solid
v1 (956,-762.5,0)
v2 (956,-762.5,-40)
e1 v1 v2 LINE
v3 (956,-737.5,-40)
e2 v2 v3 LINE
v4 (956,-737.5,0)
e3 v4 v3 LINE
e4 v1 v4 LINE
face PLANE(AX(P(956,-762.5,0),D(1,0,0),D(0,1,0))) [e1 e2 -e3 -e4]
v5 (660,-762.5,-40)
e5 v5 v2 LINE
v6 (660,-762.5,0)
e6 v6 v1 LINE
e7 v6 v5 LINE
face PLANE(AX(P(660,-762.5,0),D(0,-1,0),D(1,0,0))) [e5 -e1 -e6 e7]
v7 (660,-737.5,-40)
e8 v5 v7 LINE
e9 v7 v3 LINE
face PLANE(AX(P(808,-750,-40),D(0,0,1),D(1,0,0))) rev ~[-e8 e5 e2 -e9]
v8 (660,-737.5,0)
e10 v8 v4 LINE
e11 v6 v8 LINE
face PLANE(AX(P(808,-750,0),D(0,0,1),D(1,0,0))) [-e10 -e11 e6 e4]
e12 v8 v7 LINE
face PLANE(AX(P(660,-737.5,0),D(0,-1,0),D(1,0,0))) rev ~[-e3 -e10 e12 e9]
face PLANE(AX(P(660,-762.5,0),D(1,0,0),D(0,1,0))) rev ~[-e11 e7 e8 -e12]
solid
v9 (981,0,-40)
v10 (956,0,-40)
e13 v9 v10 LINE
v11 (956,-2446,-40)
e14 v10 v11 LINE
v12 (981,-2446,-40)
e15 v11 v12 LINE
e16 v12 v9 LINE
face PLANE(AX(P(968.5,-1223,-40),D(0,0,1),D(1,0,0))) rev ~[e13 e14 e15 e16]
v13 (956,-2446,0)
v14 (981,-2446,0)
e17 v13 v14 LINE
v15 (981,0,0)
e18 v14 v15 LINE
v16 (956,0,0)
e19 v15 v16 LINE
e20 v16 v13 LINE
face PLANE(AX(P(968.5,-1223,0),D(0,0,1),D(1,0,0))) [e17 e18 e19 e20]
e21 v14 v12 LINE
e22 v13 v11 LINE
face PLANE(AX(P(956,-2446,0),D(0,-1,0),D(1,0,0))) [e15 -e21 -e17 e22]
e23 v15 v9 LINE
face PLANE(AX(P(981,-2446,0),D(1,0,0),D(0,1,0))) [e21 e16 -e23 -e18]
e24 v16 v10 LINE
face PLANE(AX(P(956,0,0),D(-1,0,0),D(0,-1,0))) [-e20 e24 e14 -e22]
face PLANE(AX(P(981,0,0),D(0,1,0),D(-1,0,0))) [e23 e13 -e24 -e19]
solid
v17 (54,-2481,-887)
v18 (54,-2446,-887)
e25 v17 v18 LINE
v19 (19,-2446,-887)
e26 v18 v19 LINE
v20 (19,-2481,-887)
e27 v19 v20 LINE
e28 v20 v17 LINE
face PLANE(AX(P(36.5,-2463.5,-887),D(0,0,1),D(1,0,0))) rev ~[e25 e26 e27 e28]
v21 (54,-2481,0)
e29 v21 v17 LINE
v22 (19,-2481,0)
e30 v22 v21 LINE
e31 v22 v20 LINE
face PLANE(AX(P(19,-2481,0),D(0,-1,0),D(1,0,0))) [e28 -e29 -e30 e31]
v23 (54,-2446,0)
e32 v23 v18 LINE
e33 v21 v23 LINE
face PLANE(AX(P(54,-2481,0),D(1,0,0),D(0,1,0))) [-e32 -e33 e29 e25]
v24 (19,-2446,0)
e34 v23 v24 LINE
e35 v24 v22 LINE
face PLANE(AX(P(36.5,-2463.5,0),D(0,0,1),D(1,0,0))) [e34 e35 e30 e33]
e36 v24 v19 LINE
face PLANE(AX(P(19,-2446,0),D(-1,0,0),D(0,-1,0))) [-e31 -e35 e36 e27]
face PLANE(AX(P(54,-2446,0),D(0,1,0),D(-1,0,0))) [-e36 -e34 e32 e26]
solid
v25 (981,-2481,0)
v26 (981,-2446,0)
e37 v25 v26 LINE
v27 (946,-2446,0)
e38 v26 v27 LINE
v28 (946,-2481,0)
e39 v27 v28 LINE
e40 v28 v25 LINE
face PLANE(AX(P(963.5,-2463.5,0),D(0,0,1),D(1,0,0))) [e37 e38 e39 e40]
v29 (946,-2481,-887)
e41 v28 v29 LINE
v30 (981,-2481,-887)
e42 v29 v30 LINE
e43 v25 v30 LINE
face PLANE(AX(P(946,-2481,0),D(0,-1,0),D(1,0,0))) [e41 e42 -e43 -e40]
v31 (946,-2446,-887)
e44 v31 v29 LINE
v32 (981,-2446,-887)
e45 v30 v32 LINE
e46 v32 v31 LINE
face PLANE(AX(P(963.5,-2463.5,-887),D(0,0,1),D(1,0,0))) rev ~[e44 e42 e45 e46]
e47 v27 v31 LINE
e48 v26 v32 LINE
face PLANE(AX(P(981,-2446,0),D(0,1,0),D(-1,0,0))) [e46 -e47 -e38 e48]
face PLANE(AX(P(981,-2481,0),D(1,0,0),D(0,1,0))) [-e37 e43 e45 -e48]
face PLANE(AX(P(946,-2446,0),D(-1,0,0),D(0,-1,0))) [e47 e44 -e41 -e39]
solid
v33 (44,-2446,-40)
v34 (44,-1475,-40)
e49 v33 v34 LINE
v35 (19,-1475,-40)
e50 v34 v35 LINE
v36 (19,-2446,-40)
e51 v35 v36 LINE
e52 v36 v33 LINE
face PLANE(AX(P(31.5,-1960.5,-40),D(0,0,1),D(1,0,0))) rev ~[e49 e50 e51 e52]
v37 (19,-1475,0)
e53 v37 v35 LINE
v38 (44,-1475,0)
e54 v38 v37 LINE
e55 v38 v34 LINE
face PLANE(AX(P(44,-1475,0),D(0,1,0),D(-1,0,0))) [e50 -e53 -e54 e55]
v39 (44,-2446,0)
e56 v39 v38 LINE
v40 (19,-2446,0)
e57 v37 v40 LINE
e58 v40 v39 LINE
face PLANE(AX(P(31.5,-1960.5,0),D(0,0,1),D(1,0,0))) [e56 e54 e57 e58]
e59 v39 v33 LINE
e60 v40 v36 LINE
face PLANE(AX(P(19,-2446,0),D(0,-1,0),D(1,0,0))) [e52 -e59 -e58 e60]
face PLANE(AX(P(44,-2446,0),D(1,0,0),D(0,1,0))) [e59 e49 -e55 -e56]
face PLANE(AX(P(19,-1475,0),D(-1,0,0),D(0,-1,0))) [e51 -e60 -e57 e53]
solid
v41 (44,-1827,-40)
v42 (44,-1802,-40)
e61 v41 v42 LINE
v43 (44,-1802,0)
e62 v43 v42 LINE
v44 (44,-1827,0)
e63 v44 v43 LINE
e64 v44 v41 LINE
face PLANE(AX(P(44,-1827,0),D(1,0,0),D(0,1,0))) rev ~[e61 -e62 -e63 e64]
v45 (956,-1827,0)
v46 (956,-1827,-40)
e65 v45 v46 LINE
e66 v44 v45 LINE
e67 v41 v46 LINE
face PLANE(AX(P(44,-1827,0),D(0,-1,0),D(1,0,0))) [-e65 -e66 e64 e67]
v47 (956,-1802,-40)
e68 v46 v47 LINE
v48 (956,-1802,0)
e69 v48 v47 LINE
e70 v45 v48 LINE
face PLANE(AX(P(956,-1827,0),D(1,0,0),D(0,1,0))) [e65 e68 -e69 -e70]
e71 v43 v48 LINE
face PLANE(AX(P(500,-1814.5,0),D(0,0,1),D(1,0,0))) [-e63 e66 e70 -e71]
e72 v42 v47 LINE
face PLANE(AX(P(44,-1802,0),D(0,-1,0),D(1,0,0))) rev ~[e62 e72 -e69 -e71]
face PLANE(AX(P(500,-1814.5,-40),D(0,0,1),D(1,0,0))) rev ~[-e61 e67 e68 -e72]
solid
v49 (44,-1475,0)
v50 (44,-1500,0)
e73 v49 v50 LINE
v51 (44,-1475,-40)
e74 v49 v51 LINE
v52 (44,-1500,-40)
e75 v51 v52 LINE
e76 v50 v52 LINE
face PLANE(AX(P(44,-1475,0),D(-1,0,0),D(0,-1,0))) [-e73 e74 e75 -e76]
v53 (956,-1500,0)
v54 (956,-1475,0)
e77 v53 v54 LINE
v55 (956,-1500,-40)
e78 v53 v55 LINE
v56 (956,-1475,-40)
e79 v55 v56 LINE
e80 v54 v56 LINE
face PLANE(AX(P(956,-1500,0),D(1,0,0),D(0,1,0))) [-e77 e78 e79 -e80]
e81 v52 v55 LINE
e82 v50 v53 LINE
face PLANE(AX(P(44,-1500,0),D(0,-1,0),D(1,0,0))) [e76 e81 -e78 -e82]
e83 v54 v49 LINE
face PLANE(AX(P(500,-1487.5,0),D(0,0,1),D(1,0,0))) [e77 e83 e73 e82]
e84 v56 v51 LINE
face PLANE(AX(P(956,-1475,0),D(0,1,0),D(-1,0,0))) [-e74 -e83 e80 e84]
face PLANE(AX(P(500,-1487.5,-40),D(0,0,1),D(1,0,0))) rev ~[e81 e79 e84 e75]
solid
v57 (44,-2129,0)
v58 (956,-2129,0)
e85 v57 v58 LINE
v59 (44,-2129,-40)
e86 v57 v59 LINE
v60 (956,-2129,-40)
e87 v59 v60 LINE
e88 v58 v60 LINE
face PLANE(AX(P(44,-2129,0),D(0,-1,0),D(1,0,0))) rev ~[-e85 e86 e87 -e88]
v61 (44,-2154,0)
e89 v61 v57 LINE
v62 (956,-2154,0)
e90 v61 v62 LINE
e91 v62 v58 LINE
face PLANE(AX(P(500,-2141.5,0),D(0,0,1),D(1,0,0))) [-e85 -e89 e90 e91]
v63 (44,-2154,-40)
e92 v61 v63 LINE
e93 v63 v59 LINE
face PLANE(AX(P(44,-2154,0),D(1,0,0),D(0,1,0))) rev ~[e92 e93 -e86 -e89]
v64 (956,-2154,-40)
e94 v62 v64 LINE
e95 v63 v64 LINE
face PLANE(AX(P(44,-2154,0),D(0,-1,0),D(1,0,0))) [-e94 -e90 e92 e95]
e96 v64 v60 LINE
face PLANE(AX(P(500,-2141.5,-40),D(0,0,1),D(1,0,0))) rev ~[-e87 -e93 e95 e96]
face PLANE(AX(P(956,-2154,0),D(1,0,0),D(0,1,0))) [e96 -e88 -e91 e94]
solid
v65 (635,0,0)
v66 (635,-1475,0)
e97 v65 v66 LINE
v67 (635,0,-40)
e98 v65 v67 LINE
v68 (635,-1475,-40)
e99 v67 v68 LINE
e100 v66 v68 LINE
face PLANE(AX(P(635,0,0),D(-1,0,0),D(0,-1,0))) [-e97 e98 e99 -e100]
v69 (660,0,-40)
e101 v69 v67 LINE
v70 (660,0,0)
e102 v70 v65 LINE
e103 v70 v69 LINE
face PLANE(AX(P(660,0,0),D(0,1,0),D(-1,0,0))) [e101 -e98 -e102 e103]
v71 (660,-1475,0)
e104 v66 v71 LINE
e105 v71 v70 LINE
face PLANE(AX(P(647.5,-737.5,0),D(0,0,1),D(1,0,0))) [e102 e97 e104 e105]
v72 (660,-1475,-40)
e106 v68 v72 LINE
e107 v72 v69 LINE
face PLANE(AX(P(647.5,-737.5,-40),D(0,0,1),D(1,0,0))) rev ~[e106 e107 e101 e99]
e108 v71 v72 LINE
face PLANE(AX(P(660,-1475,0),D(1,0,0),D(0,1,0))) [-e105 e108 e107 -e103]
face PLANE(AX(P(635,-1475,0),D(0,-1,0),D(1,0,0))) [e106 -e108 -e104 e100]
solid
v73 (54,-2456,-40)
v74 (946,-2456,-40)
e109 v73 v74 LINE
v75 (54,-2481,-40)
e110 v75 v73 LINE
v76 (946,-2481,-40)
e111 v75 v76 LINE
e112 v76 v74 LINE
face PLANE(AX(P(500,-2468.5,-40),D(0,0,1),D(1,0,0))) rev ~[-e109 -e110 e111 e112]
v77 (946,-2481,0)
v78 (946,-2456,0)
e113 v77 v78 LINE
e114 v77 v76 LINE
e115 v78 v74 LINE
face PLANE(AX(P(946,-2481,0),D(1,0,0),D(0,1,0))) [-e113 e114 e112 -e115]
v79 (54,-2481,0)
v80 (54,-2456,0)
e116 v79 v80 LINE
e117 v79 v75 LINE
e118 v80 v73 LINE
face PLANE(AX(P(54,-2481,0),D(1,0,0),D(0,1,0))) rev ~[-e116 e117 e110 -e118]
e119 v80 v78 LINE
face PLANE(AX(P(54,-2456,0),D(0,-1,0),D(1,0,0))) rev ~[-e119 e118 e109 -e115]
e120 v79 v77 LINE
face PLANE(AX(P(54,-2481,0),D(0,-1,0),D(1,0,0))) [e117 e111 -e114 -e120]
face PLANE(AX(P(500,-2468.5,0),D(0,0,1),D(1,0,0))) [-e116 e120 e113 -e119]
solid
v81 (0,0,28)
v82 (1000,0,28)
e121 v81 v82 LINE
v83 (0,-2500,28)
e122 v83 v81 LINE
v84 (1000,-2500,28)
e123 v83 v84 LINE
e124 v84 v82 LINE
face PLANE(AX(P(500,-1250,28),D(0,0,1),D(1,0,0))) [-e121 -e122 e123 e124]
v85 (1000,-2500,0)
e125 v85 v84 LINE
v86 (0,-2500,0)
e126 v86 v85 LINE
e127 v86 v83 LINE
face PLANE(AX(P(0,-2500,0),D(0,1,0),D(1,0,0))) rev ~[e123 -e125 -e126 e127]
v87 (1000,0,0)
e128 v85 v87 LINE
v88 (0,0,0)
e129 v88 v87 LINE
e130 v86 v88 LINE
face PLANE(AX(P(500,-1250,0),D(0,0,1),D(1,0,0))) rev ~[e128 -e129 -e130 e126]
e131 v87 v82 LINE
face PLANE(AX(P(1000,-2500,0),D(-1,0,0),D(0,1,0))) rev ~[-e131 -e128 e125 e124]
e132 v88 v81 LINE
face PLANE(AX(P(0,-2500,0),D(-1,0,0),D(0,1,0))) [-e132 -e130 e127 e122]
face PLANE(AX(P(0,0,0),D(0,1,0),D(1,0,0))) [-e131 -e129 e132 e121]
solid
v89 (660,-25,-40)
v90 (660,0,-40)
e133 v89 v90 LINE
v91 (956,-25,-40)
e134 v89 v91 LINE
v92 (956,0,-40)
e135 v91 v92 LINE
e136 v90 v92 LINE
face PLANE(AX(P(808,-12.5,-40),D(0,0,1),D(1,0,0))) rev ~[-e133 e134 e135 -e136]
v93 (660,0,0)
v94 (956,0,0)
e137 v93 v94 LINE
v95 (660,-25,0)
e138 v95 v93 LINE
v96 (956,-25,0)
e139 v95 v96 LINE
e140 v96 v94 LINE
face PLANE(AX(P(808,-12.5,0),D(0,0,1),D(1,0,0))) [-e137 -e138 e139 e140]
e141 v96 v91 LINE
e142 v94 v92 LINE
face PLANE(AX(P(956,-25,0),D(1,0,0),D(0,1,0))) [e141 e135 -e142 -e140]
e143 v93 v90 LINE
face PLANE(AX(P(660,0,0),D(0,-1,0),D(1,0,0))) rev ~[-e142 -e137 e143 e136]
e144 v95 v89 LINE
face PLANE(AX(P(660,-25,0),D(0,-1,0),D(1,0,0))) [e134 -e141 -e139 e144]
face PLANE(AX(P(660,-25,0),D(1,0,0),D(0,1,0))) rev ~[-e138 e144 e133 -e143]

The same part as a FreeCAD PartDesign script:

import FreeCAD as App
import Part
import Sketcher

V = App.Vector


def add_polygon(sketch, points):
    """Adds a closed chain of lines whose ends are joined by coincident constraints."""
    first, n = sketch.GeometryCount, len(points)
    for a, b in zip(points, points[1:] + points[:1]):
        sketch.addGeometry(Part.LineSegment(App.Vector(*a, 0), App.Vector(*b, 0)), False)
    for i in range(n):
        sketch.addConstraint(Sketcher.Constraint("Coincident", first + i, 2, first + (i + 1) % n, 1))

doc = App.newDocument("Part")
body = doc.addObject("PartDesign::Body", "Body")

sketch1 = body.newObject("Sketcher::SketchObject", "Sketch")
sketch1.AttachmentSupport = (doc.getObject("XY_Plane"), [""])
sketch1.MapMode = "FlatFace"
add_polygon(sketch1, [(0, 0), (0, -2500), (1000, -2500), (1000, 0)])
sketch1.addConstraint([
    Sketcher.Constraint("Vertical", 0),
    Sketcher.Constraint("Horizontal", 1),
    Sketcher.Constraint("Vertical", 2),
    Sketcher.Constraint("Horizontal", 3),
    Sketcher.Constraint("Coincident", 3, 2, -1, 1),
    Sketcher.Constraint("DistanceX", 1, 1, 1, 2, 1000.0),
    Sketcher.Constraint("DistanceY", 0, 2, 0, 1, 2500.0),
])
pad1 = body.newObject("PartDesign::Pad", "Pad")
pad1.Profile = sketch1
pad1.Length = 28
body2 = doc.addObject("PartDesign::Body", "Body001")

sketch2 = body2.newObject("Sketcher::SketchObject", "Sketch001")
sketch2.AttachmentSupport = (doc.getObject("XY_Plane001"), [""])
sketch2.MapMode = "FlatFace"
add_polygon(sketch2, [(660, 0), (635, 0), (635, -1475), (660, -1475)])
sketch2.addConstraint([
    Sketcher.Constraint("Horizontal", 0),
    Sketcher.Constraint("Vertical", 1),
    Sketcher.Constraint("Horizontal", 2),
    Sketcher.Constraint("Vertical", 3),
    Sketcher.Constraint("PointOnObject", 0, 2, -1),
    Sketcher.Constraint("DistanceX", 0, 2, 0, 1, 25.0),
    Sketcher.Constraint("DistanceY", 1, 2, 1, 1, 1475.0),
    Sketcher.Constraint("DistanceX", -1, 1, 0, 2, 635.0),
])
pad2 = body2.newObject("PartDesign::Pad", "Pad001")
pad2.Profile = sketch2
pad2.Length = 40
pad2.Reversed = True
body3 = doc.addObject("PartDesign::Body", "Body002")

sketch3 = body3.newObject("Sketcher::SketchObject", "Sketch002")
sketch3.AttachmentSupport = (doc.getObject("XY_Plane002"), [""])
sketch3.MapMode = "FlatFace"
add_polygon(sketch3, [(981, 0), (956, 0), (956, -2446), (981, -2446)])
sketch3.addConstraint([
    Sketcher.Constraint("Horizontal", 0),
    Sketcher.Constraint("Vertical", 1),
    Sketcher.Constraint("Horizontal", 2),
    Sketcher.Constraint("Vertical", 3),
    Sketcher.Constraint("PointOnObject", 0, 2, -1),
    Sketcher.Constraint("DistanceX", 0, 2, 0, 1, 25.0),
    Sketcher.Constraint("DistanceY", 1, 2, 1, 1, 2446.0),
    Sketcher.Constraint("DistanceX", -1, 1, 0, 2, 956.0),
])
pad3 = body3.newObject("PartDesign::Pad", "Pad002")
pad3.Profile = sketch3
pad3.Length = 40
pad3.Reversed = True
body4 = doc.addObject("PartDesign::Body", "Body003")

sketch4 = body4.newObject("Sketcher::SketchObject", "Sketch003")
sketch4.AttachmentSupport = (doc.getObject("XY_Plane003"), [""])
sketch4.MapMode = "FlatFace"
add_polygon(sketch4, [(44, -1475), (44, -1500), (956, -1500), (956, -1475)])
sketch4.addConstraint([
    Sketcher.Constraint("Vertical", 0),
    Sketcher.Constraint("Horizontal", 1),
    Sketcher.Constraint("Vertical", 2),
    Sketcher.Constraint("Horizontal", 3),
    Sketcher.Constraint("DistanceX", 1, 1, 1, 2, 912.0),
    Sketcher.Constraint("DistanceY", 0, 2, 0, 1, 25.0),
    Sketcher.Constraint("DistanceX", -1, 1, 0, 2, 44.0),
    Sketcher.Constraint("DistanceY", 0, 2, -1, 1, 1500.0),
])
pad4 = body4.newObject("PartDesign::Pad", "Pad003")
pad4.Profile = sketch4
pad4.Length = 40
pad4.Reversed = True
body5 = doc.addObject("PartDesign::Body", "Body004")

sketch5 = body5.newObject("Sketcher::SketchObject", "Sketch004")
sketch5.AttachmentSupport = (doc.getObject("XY_Plane004"), [""])
sketch5.MapMode = "FlatFace"
add_polygon(sketch5, [(660, 0), (660, -25), (956, -25), (956, 0)])
sketch5.addConstraint([
    Sketcher.Constraint("Vertical", 0),
    Sketcher.Constraint("Horizontal", 1),
    Sketcher.Constraint("Vertical", 2),
    Sketcher.Constraint("Horizontal", 3),
    Sketcher.Constraint("PointOnObject", 2, 2, -1),
    Sketcher.Constraint("DistanceX", 1, 1, 1, 2, 296.0),
    Sketcher.Constraint("DistanceY", 0, 2, 0, 1, 25.0),
    Sketcher.Constraint("DistanceX", -1, 1, 0, 2, 660.0),
])
pad5 = body5.newObject("PartDesign::Pad", "Pad004")
pad5.Profile = sketch5
pad5.Length = 40
pad5.Reversed = True
body6 = doc.addObject("PartDesign::Body", "Body005")

sketch6 = body6.newObject("Sketcher::SketchObject", "Sketch005")
sketch6.AttachmentSupport = (doc.getObject("XY_Plane005"), [""])
sketch6.MapMode = "FlatFace"
add_polygon(sketch6, [(660, -738), (660, -762), (956, -762), (956, -738)])
sketch6.addConstraint([
    Sketcher.Constraint("Vertical", 0),
    Sketcher.Constraint("Horizontal", 1),
    Sketcher.Constraint("Vertical", 2),
    Sketcher.Constraint("Horizontal", 3),
    Sketcher.Constraint("DistanceX", 1, 1, 1, 2, 296.0),
    Sketcher.Constraint("DistanceY", 0, 2, 0, 1, 25.0),
    Sketcher.Constraint("DistanceX", -1, 1, 0, 2, 660.0),
    Sketcher.Constraint("DistanceY", 0, 2, -1, 1, 762.5),
])
pad6 = body6.newObject("PartDesign::Pad", "Pad005")
pad6.Profile = sketch6
pad6.Length = 40
pad6.Reversed = True
body7 = doc.addObject("PartDesign::Body", "Body006")

sketch7 = body7.newObject("Sketcher::SketchObject", "Sketch006")
sketch7.AttachmentSupport = (doc.getObject("XY_Plane006"), [""])
sketch7.MapMode = "FlatFace"
add_polygon(sketch7, [(44, -1802), (44, -1827), (956, -1827), (956, -1802)])
sketch7.addConstraint([
    Sketcher.Constraint("Vertical", 0),
    Sketcher.Constraint("Horizontal", 1),
    Sketcher.Constraint("Vertical", 2),
    Sketcher.Constraint("Horizontal", 3),
    Sketcher.Constraint("DistanceX", 1, 1, 1, 2, 912.0),
    Sketcher.Constraint("DistanceY", 0, 2, 0, 1, 25.0),
    Sketcher.Constraint("DistanceX", -1, 1, 0, 2, 44.0),
    Sketcher.Constraint("DistanceY", 0, 2, -1, 1, 1827.0),
])
pad7 = body7.newObject("PartDesign::Pad", "Pad006")
pad7.Profile = sketch7
pad7.Length = 40
pad7.Reversed = True
body8 = doc.addObject("PartDesign::Body", "Body007")

sketch8 = body8.newObject("Sketcher::SketchObject", "Sketch007")
sketch8.AttachmentSupport = (doc.getObject("XY_Plane007"), [""])
sketch8.MapMode = "FlatFace"
add_polygon(sketch8, [(44, -2129), (44, -2154), (956, -2154), (956, -2129)])
sketch8.addConstraint([
    Sketcher.Constraint("Vertical", 0),
    Sketcher.Constraint("Horizontal", 1),
    Sketcher.Constraint("Vertical", 2),
    Sketcher.Constraint("Horizontal", 3),
    Sketcher.Constraint("DistanceX", 1, 1, 1, 2, 912.0),
    Sketcher.Constraint("DistanceY", 0, 2, 0, 1, 25.0),
    Sketcher.Constraint("DistanceX", -1, 1, 0, 2, 44.0),
    Sketcher.Constraint("DistanceY", 0, 2, -1, 1, 2154.0),
])
pad8 = body8.newObject("PartDesign::Pad", "Pad007")
pad8.Profile = sketch8
pad8.Length = 40
pad8.Reversed = True
body9 = doc.addObject("PartDesign::Body", "Body008")

sketch9 = body9.newObject("Sketcher::SketchObject", "Sketch008")
sketch9.AttachmentSupport = (doc.getObject("XY_Plane008"), [""])
sketch9.MapMode = "FlatFace"
add_polygon(sketch9, [(44, -1475), (19, -1475), (19, -2446), (44, -2446)])
sketch9.addConstraint([
    Sketcher.Constraint("Horizontal", 0),
    Sketcher.Constraint("Vertical", 1),
    Sketcher.Constraint("Horizontal", 2),
    Sketcher.Constraint("Vertical", 3),
    Sketcher.Constraint("DistanceX", 0, 2, 0, 1, 25.0),
    Sketcher.Constraint("DistanceY", 1, 2, 1, 1, 971.0),
    Sketcher.Constraint("DistanceX", -1, 1, 0, 2, 19.0),
    Sketcher.Constraint("DistanceY", 0, 2, -1, 1, 1475.0),
])
pad9 = body9.newObject("PartDesign::Pad", "Pad008")
pad9.Profile = sketch9
pad9.Length = 40
pad9.Reversed = True
body10 = doc.addObject("PartDesign::Body", "Body009")

sketch10 = body10.newObject("Sketcher::SketchObject", "Sketch009")
sketch10.AttachmentSupport = (doc.getObject("XY_Plane009"), [""])
sketch10.MapMode = "FlatFace"
add_polygon(sketch10, [(981, -2481), (981, -2446), (946, -2446), (946, -2481)])
sketch10.addConstraint([
    Sketcher.Constraint("Vertical", 0),
    Sketcher.Constraint("Horizontal", 1),
    Sketcher.Constraint("Vertical", 2),
    Sketcher.Constraint("Horizontal", 3),
    Sketcher.Constraint("Equal", 3, 0),
    Sketcher.Constraint("DistanceX", 1, 2, 1, 1, 35.0),
    Sketcher.Constraint("DistanceX", -1, 1, 0, 2, 981.0),
    Sketcher.Constraint("DistanceY", 0, 2, -1, 1, 2446.0),
])
pad10 = body10.newObject("PartDesign::Pad", "Pad009")
pad10.Profile = sketch10
pad10.Length = 887
pad10.Reversed = True
body11 = doc.addObject("PartDesign::Body", "Body010")

sketch11 = body11.newObject("Sketcher::SketchObject", "Sketch010")
sketch11.AttachmentSupport = (doc.getObject("XY_Plane010"), [""])
sketch11.MapMode = "FlatFace"
add_polygon(sketch11, [(19, -2446), (19, -2481), (54, -2481), (54, -2446)])
sketch11.addConstraint([
    Sketcher.Constraint("Vertical", 0),
    Sketcher.Constraint("Horizontal", 1),
    Sketcher.Constraint("Vertical", 2),
    Sketcher.Constraint("Horizontal", 3),
    Sketcher.Constraint("Equal", 3, 0),
    Sketcher.Constraint("DistanceX", 1, 1, 1, 2, 35.0),
    Sketcher.Constraint("DistanceX", -1, 1, 0, 2, 19.0),
    Sketcher.Constraint("DistanceY", 0, 2, -1, 1, 2481.0),
])
pad11 = body11.newObject("PartDesign::Pad", "Pad010")
pad11.Profile = sketch11
pad11.Length = 887
pad11.Reversed = True
body12 = doc.addObject("PartDesign::Body", "Body011")

sketch12 = body12.newObject("Sketcher::SketchObject", "Sketch011")
sketch12.AttachmentSupport = (doc.getObject("XY_Plane011"), [""])
sketch12.MapMode = "FlatFace"
add_polygon(sketch12, [(54, -2456), (54, -2481), (946, -2481), (946, -2456)])
sketch12.addConstraint([
    Sketcher.Constraint("Vertical", 0),
    Sketcher.Constraint("Horizontal", 1),
    Sketcher.Constraint("Vertical", 2),
    Sketcher.Constraint("Horizontal", 3),
    Sketcher.Constraint("DistanceX", 1, 1, 1, 2, 892.0),
    Sketcher.Constraint("DistanceY", 0, 2, 0, 1, 25.0),
    Sketcher.Constraint("DistanceX", -1, 1, 0, 2, 54.0),
    Sketcher.Constraint("DistanceY", 0, 2, -1, 1, 2481.0),
])
pad12 = body12.newObject("PartDesign::Pad", "Pad011")
pad12.Profile = sketch12
pad12.Length = 40
pad12.Reversed = True

doc.recompute()
